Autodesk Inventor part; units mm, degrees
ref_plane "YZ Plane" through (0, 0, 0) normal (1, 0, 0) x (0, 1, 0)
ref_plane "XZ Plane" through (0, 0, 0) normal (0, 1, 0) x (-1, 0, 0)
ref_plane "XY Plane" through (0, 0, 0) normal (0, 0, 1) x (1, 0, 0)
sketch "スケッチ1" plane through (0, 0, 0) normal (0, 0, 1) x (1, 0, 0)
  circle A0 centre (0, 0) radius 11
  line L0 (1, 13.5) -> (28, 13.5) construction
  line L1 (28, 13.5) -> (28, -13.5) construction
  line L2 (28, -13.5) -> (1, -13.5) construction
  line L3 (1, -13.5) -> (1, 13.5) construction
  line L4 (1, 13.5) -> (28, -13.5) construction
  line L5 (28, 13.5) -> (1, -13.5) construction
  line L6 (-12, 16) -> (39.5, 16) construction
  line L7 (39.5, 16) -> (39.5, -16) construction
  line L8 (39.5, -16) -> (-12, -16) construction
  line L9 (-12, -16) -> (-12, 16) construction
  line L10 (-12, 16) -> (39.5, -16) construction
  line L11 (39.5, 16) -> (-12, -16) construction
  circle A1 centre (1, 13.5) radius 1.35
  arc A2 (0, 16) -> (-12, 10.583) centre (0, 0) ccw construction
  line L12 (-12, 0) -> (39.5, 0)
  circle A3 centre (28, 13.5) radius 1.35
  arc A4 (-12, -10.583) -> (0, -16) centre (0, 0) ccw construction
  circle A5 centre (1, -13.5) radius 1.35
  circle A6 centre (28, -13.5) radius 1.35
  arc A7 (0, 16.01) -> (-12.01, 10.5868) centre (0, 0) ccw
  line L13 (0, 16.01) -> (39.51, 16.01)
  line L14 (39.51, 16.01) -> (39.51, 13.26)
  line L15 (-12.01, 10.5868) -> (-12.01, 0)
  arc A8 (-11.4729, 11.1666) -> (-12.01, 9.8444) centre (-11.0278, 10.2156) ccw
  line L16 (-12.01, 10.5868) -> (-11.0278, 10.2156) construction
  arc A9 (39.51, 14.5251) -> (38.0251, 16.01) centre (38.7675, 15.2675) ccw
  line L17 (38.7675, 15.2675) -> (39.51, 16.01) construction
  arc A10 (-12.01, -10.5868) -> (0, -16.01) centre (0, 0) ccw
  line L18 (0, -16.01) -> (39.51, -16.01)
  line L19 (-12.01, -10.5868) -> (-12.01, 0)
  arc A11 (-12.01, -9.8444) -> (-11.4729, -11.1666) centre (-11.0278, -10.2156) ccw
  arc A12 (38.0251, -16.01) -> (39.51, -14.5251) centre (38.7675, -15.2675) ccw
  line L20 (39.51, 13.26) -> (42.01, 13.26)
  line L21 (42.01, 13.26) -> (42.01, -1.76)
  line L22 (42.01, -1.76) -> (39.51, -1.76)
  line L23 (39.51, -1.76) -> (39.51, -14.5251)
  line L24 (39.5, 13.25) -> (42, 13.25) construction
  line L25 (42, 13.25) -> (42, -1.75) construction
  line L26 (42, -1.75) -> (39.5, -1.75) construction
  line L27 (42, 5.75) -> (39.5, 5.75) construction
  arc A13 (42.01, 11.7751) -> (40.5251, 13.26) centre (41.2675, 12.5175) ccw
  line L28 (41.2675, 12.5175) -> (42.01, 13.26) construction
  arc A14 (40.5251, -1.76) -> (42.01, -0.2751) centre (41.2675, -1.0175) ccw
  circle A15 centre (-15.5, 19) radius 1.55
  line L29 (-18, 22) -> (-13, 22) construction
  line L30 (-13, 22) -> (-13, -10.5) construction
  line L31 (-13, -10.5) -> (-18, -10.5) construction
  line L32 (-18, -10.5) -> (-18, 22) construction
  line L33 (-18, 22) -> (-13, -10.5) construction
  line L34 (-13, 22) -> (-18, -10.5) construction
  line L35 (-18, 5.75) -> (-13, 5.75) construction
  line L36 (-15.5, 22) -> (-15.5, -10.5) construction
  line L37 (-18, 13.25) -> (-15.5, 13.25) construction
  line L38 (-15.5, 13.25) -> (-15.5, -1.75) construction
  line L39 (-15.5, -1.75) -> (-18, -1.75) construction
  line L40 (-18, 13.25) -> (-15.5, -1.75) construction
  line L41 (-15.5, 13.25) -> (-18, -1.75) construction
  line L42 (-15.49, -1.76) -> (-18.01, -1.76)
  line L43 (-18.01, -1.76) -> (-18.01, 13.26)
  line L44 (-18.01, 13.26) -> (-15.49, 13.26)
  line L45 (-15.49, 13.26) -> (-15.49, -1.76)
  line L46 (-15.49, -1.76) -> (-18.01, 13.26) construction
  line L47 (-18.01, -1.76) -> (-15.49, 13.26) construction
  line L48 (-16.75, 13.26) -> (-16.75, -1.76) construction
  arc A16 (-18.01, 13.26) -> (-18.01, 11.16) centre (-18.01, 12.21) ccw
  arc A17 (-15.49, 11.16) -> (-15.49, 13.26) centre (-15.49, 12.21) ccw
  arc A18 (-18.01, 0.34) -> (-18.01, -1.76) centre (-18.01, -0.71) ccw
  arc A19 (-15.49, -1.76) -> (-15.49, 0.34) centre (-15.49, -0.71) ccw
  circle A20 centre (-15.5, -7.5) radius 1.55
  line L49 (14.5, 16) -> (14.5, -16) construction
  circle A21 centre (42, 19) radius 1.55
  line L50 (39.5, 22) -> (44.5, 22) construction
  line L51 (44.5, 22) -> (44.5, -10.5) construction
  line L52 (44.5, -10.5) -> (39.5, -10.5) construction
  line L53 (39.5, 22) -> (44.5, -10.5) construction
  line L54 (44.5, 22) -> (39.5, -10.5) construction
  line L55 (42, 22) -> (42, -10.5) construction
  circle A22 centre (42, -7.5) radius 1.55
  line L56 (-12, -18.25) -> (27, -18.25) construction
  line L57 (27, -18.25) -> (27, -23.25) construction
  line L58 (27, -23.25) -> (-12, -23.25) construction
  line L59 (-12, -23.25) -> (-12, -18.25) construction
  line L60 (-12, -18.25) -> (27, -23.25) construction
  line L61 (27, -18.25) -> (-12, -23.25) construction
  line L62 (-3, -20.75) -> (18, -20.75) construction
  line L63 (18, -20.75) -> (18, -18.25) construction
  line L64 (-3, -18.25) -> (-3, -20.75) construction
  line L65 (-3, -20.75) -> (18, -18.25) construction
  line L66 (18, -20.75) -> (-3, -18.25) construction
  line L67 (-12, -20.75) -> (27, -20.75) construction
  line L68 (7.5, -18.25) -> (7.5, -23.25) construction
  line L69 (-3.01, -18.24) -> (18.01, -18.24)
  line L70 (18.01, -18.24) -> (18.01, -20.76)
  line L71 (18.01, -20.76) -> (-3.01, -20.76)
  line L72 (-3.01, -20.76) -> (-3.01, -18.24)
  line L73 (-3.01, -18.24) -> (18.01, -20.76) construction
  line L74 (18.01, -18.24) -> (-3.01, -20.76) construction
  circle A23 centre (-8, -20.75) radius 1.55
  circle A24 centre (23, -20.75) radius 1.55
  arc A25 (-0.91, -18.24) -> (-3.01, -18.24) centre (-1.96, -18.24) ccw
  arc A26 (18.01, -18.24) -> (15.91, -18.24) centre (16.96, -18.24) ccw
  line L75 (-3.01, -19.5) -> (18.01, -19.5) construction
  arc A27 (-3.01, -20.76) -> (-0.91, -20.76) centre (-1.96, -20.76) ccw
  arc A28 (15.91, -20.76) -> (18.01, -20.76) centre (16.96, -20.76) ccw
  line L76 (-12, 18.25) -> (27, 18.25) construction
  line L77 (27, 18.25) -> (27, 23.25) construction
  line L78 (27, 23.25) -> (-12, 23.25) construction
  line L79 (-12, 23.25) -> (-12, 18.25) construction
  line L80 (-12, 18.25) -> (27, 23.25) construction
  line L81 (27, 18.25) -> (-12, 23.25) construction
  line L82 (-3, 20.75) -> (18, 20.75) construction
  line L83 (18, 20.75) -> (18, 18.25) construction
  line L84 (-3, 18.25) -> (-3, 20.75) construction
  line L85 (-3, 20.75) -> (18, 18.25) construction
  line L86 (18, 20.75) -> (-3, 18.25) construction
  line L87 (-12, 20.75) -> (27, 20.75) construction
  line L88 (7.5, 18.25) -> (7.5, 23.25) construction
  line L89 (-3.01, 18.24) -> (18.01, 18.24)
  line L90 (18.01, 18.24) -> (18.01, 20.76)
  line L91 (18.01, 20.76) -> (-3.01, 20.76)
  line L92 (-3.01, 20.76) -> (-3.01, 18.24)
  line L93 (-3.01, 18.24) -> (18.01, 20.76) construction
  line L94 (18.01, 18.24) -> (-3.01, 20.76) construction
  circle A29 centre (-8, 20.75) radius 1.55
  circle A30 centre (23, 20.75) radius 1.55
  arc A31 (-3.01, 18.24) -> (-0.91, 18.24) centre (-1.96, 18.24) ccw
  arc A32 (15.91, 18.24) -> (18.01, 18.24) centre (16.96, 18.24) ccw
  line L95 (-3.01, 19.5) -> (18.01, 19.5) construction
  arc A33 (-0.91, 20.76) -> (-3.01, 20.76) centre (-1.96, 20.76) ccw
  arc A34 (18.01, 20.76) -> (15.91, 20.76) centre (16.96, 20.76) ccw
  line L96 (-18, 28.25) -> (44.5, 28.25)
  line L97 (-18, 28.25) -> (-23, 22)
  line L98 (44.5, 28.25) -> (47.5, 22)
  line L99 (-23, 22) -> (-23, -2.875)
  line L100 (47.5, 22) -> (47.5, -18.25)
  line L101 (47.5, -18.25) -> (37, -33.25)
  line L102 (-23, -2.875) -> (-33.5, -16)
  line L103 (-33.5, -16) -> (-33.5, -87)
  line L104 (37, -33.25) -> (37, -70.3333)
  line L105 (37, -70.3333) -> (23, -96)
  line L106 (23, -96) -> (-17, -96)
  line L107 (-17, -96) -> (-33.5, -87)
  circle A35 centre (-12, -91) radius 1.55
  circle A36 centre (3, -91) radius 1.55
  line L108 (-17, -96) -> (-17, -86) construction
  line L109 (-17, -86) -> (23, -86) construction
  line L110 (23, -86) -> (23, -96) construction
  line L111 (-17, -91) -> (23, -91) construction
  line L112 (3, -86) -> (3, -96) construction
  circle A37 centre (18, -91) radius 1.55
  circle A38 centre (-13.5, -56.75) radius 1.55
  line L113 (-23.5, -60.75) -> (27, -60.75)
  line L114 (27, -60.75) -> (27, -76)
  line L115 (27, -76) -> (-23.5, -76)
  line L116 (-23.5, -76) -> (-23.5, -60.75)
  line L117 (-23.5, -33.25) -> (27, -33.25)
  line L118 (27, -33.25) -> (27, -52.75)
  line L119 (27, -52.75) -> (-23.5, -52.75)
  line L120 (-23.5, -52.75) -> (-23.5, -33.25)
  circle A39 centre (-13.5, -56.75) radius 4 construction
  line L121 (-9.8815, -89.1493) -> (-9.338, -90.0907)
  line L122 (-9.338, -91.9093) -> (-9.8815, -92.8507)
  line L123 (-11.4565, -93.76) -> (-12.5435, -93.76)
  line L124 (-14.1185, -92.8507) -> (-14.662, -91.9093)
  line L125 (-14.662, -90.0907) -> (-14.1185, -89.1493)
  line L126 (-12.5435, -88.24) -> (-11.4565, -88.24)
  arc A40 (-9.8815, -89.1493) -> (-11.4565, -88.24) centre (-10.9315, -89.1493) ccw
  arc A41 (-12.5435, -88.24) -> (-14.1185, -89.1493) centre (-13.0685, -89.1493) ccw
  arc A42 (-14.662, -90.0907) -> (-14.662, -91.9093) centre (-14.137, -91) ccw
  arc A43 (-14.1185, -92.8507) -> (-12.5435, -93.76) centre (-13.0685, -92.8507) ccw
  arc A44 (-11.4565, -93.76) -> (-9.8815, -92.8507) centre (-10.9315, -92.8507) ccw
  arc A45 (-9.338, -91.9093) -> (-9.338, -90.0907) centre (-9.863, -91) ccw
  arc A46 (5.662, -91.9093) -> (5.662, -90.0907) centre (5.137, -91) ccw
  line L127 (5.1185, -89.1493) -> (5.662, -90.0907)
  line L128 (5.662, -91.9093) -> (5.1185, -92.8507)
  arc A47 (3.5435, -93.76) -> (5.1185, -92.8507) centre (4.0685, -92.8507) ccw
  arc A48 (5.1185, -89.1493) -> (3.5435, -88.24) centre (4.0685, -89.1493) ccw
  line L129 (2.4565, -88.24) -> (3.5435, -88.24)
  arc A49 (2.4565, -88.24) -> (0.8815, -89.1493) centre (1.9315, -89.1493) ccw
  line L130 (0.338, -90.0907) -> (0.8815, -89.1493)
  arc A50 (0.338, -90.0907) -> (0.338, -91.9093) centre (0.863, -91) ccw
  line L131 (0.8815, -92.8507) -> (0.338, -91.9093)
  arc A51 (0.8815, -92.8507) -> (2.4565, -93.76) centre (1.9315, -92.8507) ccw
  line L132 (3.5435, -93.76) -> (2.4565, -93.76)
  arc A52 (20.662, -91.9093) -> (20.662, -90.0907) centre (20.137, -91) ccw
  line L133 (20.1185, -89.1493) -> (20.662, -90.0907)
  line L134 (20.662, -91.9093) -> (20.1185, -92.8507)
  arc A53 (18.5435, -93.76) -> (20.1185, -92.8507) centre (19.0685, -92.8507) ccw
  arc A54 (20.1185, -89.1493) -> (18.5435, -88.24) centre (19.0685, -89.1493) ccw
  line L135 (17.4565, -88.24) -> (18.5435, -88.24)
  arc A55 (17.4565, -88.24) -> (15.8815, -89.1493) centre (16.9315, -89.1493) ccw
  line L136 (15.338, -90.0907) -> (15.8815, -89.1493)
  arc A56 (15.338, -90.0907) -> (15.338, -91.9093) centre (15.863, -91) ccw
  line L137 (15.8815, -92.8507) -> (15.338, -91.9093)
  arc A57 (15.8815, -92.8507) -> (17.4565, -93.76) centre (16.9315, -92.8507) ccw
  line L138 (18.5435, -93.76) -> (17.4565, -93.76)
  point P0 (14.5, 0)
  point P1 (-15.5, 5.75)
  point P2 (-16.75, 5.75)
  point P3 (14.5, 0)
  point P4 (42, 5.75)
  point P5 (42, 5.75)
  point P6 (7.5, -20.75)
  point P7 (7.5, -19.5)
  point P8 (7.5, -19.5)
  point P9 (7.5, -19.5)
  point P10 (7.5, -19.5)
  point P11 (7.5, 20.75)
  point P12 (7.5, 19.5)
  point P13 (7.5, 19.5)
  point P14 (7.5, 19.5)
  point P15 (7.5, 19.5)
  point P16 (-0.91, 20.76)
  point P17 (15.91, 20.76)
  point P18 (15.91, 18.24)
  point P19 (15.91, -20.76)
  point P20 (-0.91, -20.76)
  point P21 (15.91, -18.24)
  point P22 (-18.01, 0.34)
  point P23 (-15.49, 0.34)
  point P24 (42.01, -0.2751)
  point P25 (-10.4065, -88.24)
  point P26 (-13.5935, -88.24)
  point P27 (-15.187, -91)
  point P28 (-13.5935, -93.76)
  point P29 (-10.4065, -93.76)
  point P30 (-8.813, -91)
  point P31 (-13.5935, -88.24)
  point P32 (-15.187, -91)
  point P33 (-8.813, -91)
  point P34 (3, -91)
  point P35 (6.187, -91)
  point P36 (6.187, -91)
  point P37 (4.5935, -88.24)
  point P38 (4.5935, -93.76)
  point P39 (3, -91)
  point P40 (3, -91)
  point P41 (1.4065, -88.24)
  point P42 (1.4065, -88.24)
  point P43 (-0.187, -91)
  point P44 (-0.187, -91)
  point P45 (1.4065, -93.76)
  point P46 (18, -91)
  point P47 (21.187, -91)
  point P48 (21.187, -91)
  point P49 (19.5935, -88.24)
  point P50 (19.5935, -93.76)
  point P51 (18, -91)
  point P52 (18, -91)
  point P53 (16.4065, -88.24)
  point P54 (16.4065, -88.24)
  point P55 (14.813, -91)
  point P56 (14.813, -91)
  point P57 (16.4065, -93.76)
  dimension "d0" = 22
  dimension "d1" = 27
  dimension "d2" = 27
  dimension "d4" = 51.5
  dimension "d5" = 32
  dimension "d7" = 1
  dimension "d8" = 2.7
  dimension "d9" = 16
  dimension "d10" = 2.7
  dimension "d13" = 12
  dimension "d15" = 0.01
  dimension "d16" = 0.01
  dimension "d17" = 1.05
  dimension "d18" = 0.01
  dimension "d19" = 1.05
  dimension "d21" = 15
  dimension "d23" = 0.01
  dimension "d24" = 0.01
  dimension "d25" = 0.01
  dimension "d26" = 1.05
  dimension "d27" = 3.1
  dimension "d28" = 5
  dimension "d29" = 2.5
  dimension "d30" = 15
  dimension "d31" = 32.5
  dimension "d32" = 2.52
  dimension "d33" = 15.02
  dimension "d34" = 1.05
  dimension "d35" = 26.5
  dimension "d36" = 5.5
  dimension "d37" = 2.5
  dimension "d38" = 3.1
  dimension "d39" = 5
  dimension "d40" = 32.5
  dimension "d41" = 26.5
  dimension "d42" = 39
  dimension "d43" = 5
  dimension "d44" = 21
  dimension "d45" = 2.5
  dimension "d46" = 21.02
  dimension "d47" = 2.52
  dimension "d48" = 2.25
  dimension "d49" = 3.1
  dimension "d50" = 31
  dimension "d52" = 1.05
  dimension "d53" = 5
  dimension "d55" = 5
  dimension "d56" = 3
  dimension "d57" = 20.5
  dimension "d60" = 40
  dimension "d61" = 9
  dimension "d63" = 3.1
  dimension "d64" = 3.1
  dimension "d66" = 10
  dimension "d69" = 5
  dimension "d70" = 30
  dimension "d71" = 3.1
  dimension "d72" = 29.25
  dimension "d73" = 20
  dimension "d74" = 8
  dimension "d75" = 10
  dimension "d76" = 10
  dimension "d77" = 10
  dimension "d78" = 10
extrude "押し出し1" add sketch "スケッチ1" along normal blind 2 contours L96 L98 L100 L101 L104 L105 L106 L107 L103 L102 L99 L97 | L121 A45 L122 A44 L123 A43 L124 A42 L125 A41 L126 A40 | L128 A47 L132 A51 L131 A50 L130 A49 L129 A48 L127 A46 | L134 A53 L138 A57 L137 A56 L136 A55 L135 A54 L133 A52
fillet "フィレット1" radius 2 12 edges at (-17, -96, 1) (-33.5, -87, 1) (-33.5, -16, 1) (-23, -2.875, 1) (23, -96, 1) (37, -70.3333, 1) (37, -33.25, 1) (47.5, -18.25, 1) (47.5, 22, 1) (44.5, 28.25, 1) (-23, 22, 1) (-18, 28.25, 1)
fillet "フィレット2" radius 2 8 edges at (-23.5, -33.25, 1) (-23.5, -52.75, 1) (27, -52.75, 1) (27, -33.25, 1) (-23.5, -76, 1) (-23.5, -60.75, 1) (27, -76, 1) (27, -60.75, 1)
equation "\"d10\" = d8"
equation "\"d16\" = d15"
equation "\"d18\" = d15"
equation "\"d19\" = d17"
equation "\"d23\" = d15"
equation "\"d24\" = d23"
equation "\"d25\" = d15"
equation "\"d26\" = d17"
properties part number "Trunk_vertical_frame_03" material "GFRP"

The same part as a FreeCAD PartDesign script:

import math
import FreeCAD as App
import Part
import Sketcher

V = App.Vector
Q = App.Units.Quantity


def edges_at(feature, points):
    """Names of the edges that pass closest to the given points."""
    edges = feature.Shape.Edges
    near = lambda p: min(range(len(edges)), key=lambda i: edges[i].distToShape(Part.Vertex(*p))[0])
    return sorted({f"Edge{near(p) + 1}" for p in points})


def add_polygon(sketch, points):
    """Adds a closed chain of lines whose ends are joined by coincident constraints."""
    first, n = sketch.GeometryCount, len(points)
    for a, b in zip(points, points[1:] + points[:1]):
        sketch.addGeometry(Part.LineSegment(App.Vector(*a, 0), App.Vector(*b, 0)), False)
    for i in range(n):
        sketch.addConstraint(Sketcher.Constraint("Coincident", first + i, 2, first + (i + 1) % n, 1))

doc = App.newDocument("Part")
params = doc.addObject("Spreadsheet::Sheet", "Params")
for row, (alias, value) in enumerate([
    ("sketch1_diameter", "3.1 mm"),
    ("sketch1_width", "40 mm"),
    ("sketch1_radius", "1.05 mm"),
    ("sketch1_width2", "2.52 mm"),
    ("sketch1_height", "71 mm"),
    ("pad1_length", "2 mm"),
    ("fillet_radius", "2 mm"),
    ("fillet2_radius", "2 mm"),
], start=1):
    params.set(f"A{row}", alias)
    params.set(f"B{row}", "=" + value)
    params.setAlias(f"B{row}", alias)

body = doc.addObject("PartDesign::Body", "Body")

sketch1 = body.newObject("Sketcher::SketchObject", "Sketch")
sketch1.AttachmentSupport = (doc.getObject("XY_Plane"), [""])
sketch1.MapMode = "FlatFace"
add_polygon(sketch1, [(44.5, 28.2), (-18, 28.2), (-23, 22), (-23, -2.9), (-33.5, -16), (-33.5, -87), (-17, -96), (23, -96), (37, -70.3), (37, -33.2), (47.5, -18.2), (47.5, 22)])
add_polygon(sketch1, [(-23.5, -76), (-23.5, -60.8), (27, -60.8), (27, -76)])
sketch1.addGeometry(Part.Circle(V(-13.5, -56.8, 0), V(0, 0, 1), 1.6), False)
add_polygon(sketch1, [(-23.5, -52.8), (-23.5, -33.2), (27, -33.2), (27, -52.8)])
sketch1.addGeometry(Part.Circle(V(-15.5, -7.5, 0), V(0, 0, 1), 1.6), False)
sketch1.addGeometry(Part.Circle(V(-8, -20.8, 0), V(0, 0, 1), 1.6), False)
sketch1.addGeometry(Part.ArcOfCircle(Part.Circle(V(-15.5, -0.7, 0), V(0, 0, 1), 1.1), math.radians(-90), math.radians(90)), False)
sketch1.addGeometry(Part.LineSegment(V(-15.5, -1.8, 0), V(-18, -1.8, 0)), False)
sketch1.addGeometry(Part.ArcOfCircle(Part.Circle(V(-18, -0.7, 0), V(0, 0, 1), 1.1), math.radians(90), math.radians(270)), False)
sketch1.addGeometry(Part.LineSegment(V(-18, 0.3, 0), V(-18, 11.2, 0)), False)
sketch1.addGeometry(Part.ArcOfCircle(Part.Circle(V(-18, 12.2, 0), V(0, 0, 1), 1), math.radians(90), math.radians(270)), False)
sketch1.addGeometry(Part.LineSegment(V(-18, 13.3, 0), V(-15.5, 13.3, 0)), False)
sketch1.addGeometry(Part.ArcOfCircle(Part.Circle(V(-15.5, 12.2, 0), V(0, 0, 1), 1.1), math.radians(-90), math.radians(90)), False)
sketch1.addGeometry(Part.LineSegment(V(-15.5, 11.2, 0), V(-15.5, 0.3, 0)), False)
sketch1.addGeometry(Part.Circle(V(-15.5, 19, 0), V(0, 0, 1), 1.6), False)
sketch1.addGeometry(Part.Circle(V(-8, 20.8, 0), V(0, 0, 1), 1.6), False)
sketch1.addGeometry(Part.LineSegment(V(-3, -20.8, 0), V(-3, -18.2, 0)), False)
sketch1.addGeometry(Part.ArcOfCircle(Part.Circle(V(-2, -18.2, 0), V(0, 0, 1), 1), math.radians(0), math.radians(180)), False)
sketch1.addGeometry(Part.LineSegment(V(-0.9, -18.2, 0), V(15.9, -18.2, 0)), False)
sketch1.addGeometry(Part.ArcOfCircle(Part.Circle(V(17, -18.2, 0), V(0, 0, 1), 1.1), math.radians(0), math.radians(180)), False)
sketch1.addGeometry(Part.LineSegment(V(18, -18.2, 0), V(18, -20.8, 0)), False)
sketch1.addGeometry(Part.ArcOfCircle(Part.Circle(V(17, -20.8, 0), V(0, 0, 1), 1.1), math.radians(180), math.radians(360)), False)
sketch1.addGeometry(Part.LineSegment(V(15.9, -20.8, 0), V(-0.9, -20.8, 0)), False)
sketch1.addGeometry(Part.ArcOfCircle(Part.Circle(V(-2, -20.8, 0), V(0, 0, 1), 1), math.radians(180), math.radians(360)), False)
sketch1.addGeometry(Part.Circle(V(23, -20.8, 0), V(0, 0, 1), 1.6), False)
sketch1.addGeometry(Part.Circle(V(42, -7.5, 0), V(0, 0, 1), 1.6), False)
sketch1.addGeometry(Part.ArcOfCircle(Part.Circle(V(0, 0, 0), V(0, 0, 1), 16), math.radians(90), math.radians(136)), False)
sketch1.addGeometry(Part.LineSegment(V(0, 16, 0), V(38, 16, 0)), False)
sketch1.addGeometry(Part.ArcOfCircle(Part.Circle(V(38.8, 15.3, 0), V(0, 0, 1), 1), math.radians(-45), math.radians(135)), False)
sketch1.addGeometry(Part.LineSegment(V(39.5, 14.5, 0), V(39.5, 13.3, 0)), False)
sketch1.addGeometry(Part.LineSegment(V(39.5, 13.3, 0), V(40.5, 13.3, 0)), False)
sketch1.addGeometry(Part.ArcOfCircle(Part.Circle(V(41.3, 12.5, 0), V(0, 0, 1), 1), math.radians(-45), math.radians(135)), False)
sketch1.addGeometry(Part.LineSegment(V(42, 11.8, 0), V(42, -0.3, 0)), False)
sketch1.addGeometry(Part.ArcOfCircle(Part.Circle(V(41.3, -1, 0), V(0, 0, 1), 1), math.radians(-135), math.radians(45)), False)
sketch1.addGeometry(Part.LineSegment(V(40.5, -1.8, 0), V(39.5, -1.8, 0)), False)
sketch1.addGeometry(Part.LineSegment(V(39.5, -1.8, 0), V(39.5, -14.5, 0)), False)
sketch1.addGeometry(Part.ArcOfCircle(Part.Circle(V(38.8, -15.3, 0), V(0, 0, 1), 1), math.radians(-135), math.radians(45)), False)
sketch1.addGeometry(Part.LineSegment(V(38, -16, 0), V(0, -16, 0)), False)
sketch1.addGeometry(Part.ArcOfCircle(Part.Circle(V(0, 0, 0), V(0, 0, 1), 16), math.radians(-136), math.radians(-90)), False)
sketch1.addGeometry(Part.ArcOfCircle(Part.Circle(V(-11, -10.2, 0), V(0, 0, 1), 1.1), math.radians(159), math.radians(245)), False)
sketch1.addGeometry(Part.LineSegment(V(-12, -9.8, 0), V(-12, 9.8, 0)), False)
sketch1.addGeometry(Part.ArcOfCircle(Part.Circle(V(-11, 10.2, 0), V(0, 0, 1), 1.1), math.radians(115), math.radians(201)), False)
sketch1.addGeometry(Part.ArcOfCircle(Part.Circle(V(-2, 18.2, 0), V(0, 0, 1), 1), math.radians(180), math.radians(360)), False)
sketch1.addGeometry(Part.LineSegment(V(-3, 18.2, 0), V(-3, 20.8, 0)), False)
sketch1.addGeometry(Part.ArcOfCircle(Part.Circle(V(-2, 20.8, 0), V(0, 0, 1), 1), math.radians(0), math.radians(180)), False)
sketch1.addGeometry(Part.LineSegment(V(-0.9, 20.8, 0), V(15.9, 20.8, 0)), False)
sketch1.addGeometry(Part.ArcOfCircle(Part.Circle(V(17, 20.8, 0), V(0, 0, 1), 1.1), math.radians(0), math.radians(180)), False)
sketch1.addGeometry(Part.LineSegment(V(18, 20.8, 0), V(18, 18.2, 0)), False)
sketch1.addGeometry(Part.ArcOfCircle(Part.Circle(V(17, 18.2, 0), V(0, 0, 1), 1.1), math.radians(180), math.radians(360)), False)
sketch1.addGeometry(Part.LineSegment(V(15.9, 18.2, 0), V(-0.9, 18.2, 0)), False)
sketch1.addGeometry(Part.Circle(V(23, 20.8, 0), V(0, 0, 1), 1.6), False)
sketch1.addGeometry(Part.Circle(V(42, 19, 0), V(0, 0, 1), 1.6), False)
sketch1.addGeometry(Part.Circle(V(-12, -91, 0), V(0, 0, 1), 1.6), False)
sketch1.addGeometry(Part.Circle(V(3, -91, 0), V(0, 0, 1), 1.6), False)
sketch1.addGeometry(Part.Circle(V(18, -91, 0), V(0, 0, 1), 1.6), False)
sketch1.addConstraint(Sketcher.Constraint("Tangent", 23, 1, 24, 1))
sketch1.addConstraint(Sketcher.Constraint("Tangent", 24, 2, 25, 2))
sketch1.addConstraint(Sketcher.Constraint("Coincident", 25, 1, 26, 1))
sketch1.addConstraint(Sketcher.Constraint("Coincident", 26, 2, 27, 2))
sketch1.addConstraint(Sketcher.Constraint("Tangent", 27, 1, 28, 1))
sketch1.addConstraint(Sketcher.Constraint("Tangent", 28, 2, 29, 2))
sketch1.addConstraint(Sketcher.Constraint("Coincident", 29, 1, 30, 1))
sketch1.addConstraint(Sketcher.Constraint("Coincident", 30, 2, 23, 2))
sketch1.addConstraint(Sketcher.Constraint("Tangent", 33, 2, 34, 2))
sketch1.addConstraint(Sketcher.Constraint("Coincident", 34, 1, 35, 1))
sketch1.addConstraint(Sketcher.Constraint("Coincident", 35, 2, 36, 2))
sketch1.addConstraint(Sketcher.Constraint("Tangent", 36, 1, 37, 1))
sketch1.addConstraint(Sketcher.Constraint("Tangent", 37, 2, 38, 2))
sketch1.addConstraint(Sketcher.Constraint("Coincident", 38, 1, 39, 1))
sketch1.addConstraint(Sketcher.Constraint("Coincident", 39, 2, 40, 2))
sketch1.addConstraint(Sketcher.Constraint("Tangent", 40, 1, 33, 1))
sketch1.addConstraint(Sketcher.Constraint("Tangent", 43, 1, 44, 1))
sketch1.addConstraint(Sketcher.Constraint("Coincident", 44, 2, 45, 2))
sketch1.addConstraint(Sketcher.Constraint("Coincident", 45, 1, 46, 1))
sketch1.addConstraint(Sketcher.Constraint("Coincident", 46, 2, 47, 1))
sketch1.addConstraint(Sketcher.Constraint("Coincident", 47, 2, 48, 2))
sketch1.addConstraint(Sketcher.Constraint("Coincident", 48, 1, 49, 1))
sketch1.addConstraint(Sketcher.Constraint("Coincident", 49, 2, 50, 2))
sketch1.addConstraint(Sketcher.Constraint("Coincident", 50, 1, 51, 1))
sketch1.addConstraint(Sketcher.Constraint("Coincident", 51, 2, 52, 1))
sketch1.addConstraint(Sketcher.Constraint("Coincident", 52, 2, 53, 2))
sketch1.addConstraint(Sketcher.Constraint("Coincident", 53, 1, 54, 1))
sketch1.addConstraint(Sketcher.Constraint("Tangent", 54, 2, 55, 2))
sketch1.addConstraint(Sketcher.Constraint("Coincident", 55, 1, 56, 2))
sketch1.addConstraint(Sketcher.Constraint("Coincident", 56, 1, 57, 1))
sketch1.addConstraint(Sketcher.Constraint("Coincident", 57, 2, 58, 2))
sketch1.addConstraint(Sketcher.Constraint("Coincident", 58, 1, 43, 2))
sketch1.addConstraint(Sketcher.Constraint("Tangent", 59, 1, 60, 1))
sketch1.addConstraint(Sketcher.Constraint("Tangent", 60, 2, 61, 2))
sketch1.addConstraint(Sketcher.Constraint("Coincident", 61, 1, 62, 1))
sketch1.addConstraint(Sketcher.Constraint("Coincident", 62, 2, 63, 2))
sketch1.addConstraint(Sketcher.Constraint("Tangent", 63, 1, 64, 1))
sketch1.addConstraint(Sketcher.Constraint("Tangent", 64, 2, 65, 2))
sketch1.addConstraint(Sketcher.Constraint("Coincident", 65, 1, 66, 1))
sketch1.addConstraint(Sketcher.Constraint("Coincident", 66, 2, 59, 2))
sketch1.addConstraint(Sketcher.Constraint("Horizontal", 0))
sketch1.addConstraint(Sketcher.Constraint("Vertical", 2))
sketch1.addConstraint(Sketcher.Constraint("Vertical", 4))
sketch1.addConstraint(Sketcher.Constraint("Horizontal", 6))
sketch1.addConstraint(Sketcher.Constraint("Vertical", 8))
sketch1.addConstraint(Sketcher.Constraint("Vertical", 10))
sketch1.addConstraint(Sketcher.Constraint("Vertical", 12))
sketch1.addConstraint(Sketcher.Constraint("Horizontal", 13))
sketch1.addConstraint(Sketcher.Constraint("Vertical", 14))
sketch1.addConstraint(Sketcher.Constraint("Horizontal", 15))
sketch1.addConstraint(Sketcher.Constraint("Vertical", 17))
sketch1.addConstraint(Sketcher.Constraint("Horizontal", 18))
sketch1.addConstraint(Sketcher.Constraint("Vertical", 19))
sketch1.addConstraint(Sketcher.Constraint("Horizontal", 20))
sketch1.addConstraint(Sketcher.Constraint("Horizontal", 24))
sketch1.addConstraint(Sketcher.Constraint("Vertical", 26))
sketch1.addConstraint(Sketcher.Constraint("Horizontal", 28))
sketch1.addConstraint(Sketcher.Constraint("Vertical", 30))
sketch1.addConstraint(Sketcher.Constraint("Vertical", 33))
sketch1.addConstraint(Sketcher.Constraint("Horizontal", 35))
sketch1.addConstraint(Sketcher.Constraint("Vertical", 37))
sketch1.addConstraint(Sketcher.Constraint("Horizontal", 39))
sketch1.addConstraint(Sketcher.Constraint("Horizontal", 44))
sketch1.addConstraint(Sketcher.Constraint("Vertical", 46))
sketch1.addConstraint(Sketcher.Constraint("Horizontal", 47))
sketch1.addConstraint(Sketcher.Constraint("Vertical", 49))
sketch1.addConstraint(Sketcher.Constraint("Horizontal", 51))
sketch1.addConstraint(Sketcher.Constraint("Vertical", 52))
sketch1.addConstraint(Sketcher.Constraint("Horizontal", 54))
sketch1.addConstraint(Sketcher.Constraint("Vertical", 57))
sketch1.addConstraint(Sketcher.Constraint("Vertical", 60))
sketch1.addConstraint(Sketcher.Constraint("Horizontal", 62))
sketch1.addConstraint(Sketcher.Constraint("Vertical", 64))
sketch1.addConstraint(Sketcher.Constraint("Horizontal", 66))
sketch1.addConstraint(Sketcher.Constraint("Coincident", 43, 3, -1, 1))
sketch1.addConstraint(Sketcher.Constraint("Coincident", 55, 3, -1, 1))
sketch1.addConstraint(Sketcher.Constraint("Equal", 16, 21))
sketch1.addConstraint(Sketcher.Constraint("Equal", 21, 22))
sketch1.addConstraint(Sketcher.Constraint("Equal", 23, 25))
sketch1.addConstraint(Sketcher.Constraint("Equal", 25, 27))
sketch1.addConstraint(Sketcher.Constraint("Equal", 27, 29))
sketch1.addConstraint(Sketcher.Constraint("Equal", 22, 31))
sketch1.addConstraint(Sketcher.Constraint("Equal", 31, 32))
sketch1.addConstraint(Sketcher.Constraint("Equal", 29, 34))
sketch1.addConstraint(Sketcher.Constraint("Equal", 34, 36))
sketch1.addConstraint(Sketcher.Constraint("Equal", 36, 38))
sketch1.addConstraint(Sketcher.Constraint("Equal", 38, 40))
sketch1.addConstraint(Sketcher.Constraint("Equal", 32, 41))
sketch1.addConstraint(Sketcher.Constraint("Equal", 41, 42))
sketch1.addConstraint(Sketcher.Constraint("Equal", 40, 45))
sketch1.addConstraint(Sketcher.Constraint("Equal", 45, 48))
sketch1.addConstraint(Sketcher.Constraint("Equal", 48, 50))
sketch1.addConstraint(Sketcher.Constraint("Equal", 50, 53))
sketch1.addConstraint(Sketcher.Constraint("Equal", 43, 55))
sketch1.addConstraint(Sketcher.Constraint("Equal", 53, 56))
sketch1.addConstraint(Sketcher.Constraint("Equal", 56, 58))
sketch1.addConstraint(Sketcher.Constraint("Equal", 58, 59))
sketch1.addConstraint(Sketcher.Constraint("Equal", 59, 61))
sketch1.addConstraint(Sketcher.Constraint("Equal", 61, 63))
sketch1.addConstraint(Sketcher.Constraint("Equal", 63, 65))
sketch1.addConstraint(Sketcher.Constraint("Equal", 42, 67))
sketch1.addConstraint(Sketcher.Constraint("Equal", 67, 68))
sketch1.addConstraint(Sketcher.Constraint("Equal", 68, 69))
sketch1.addConstraint(Sketcher.Constraint("Equal", 69, 70))
sketch1.addConstraint(Sketcher.Constraint("Equal", 70, 71))
sketch1.addConstraint(Sketcher.Constraint("Symmetric", 22, 3, 32, 3, -1))
sketch1.addConstraint(Sketcher.Constraint("Symmetric", 45, 3, 53, 3, -1))
sketch1.addConstraint(Sketcher.Constraint("Symmetric", 56, 3, 58, 3, -1))
sketch1.addConstraint(Sketcher.Constraint("Symmetric", 34, 3, 59, 3, -1))
sketch1.addConstraint(Sketcher.Constraint("Symmetric", 38, 3, 63, 3, -1))
sketch1.addConstraint(Sketcher.Constraint("Symmetric", 41, 3, 67, 3, -1))
sketch1.addConstraint(Sketcher.Constraint("Parallel", 1, 3))
sketch1.addConstraint(Sketcher.Constraint("Perpendicular", 5, 7))
sketch1.addConstraint(Sketcher.Constraint("Horizontal", 34, 3, 36, 3))
sketch1.addConstraint(Sketcher.Constraint("Horizontal", 38, 3, 40, 3))
sketch1.addConstraint(Sketcher.Constraint("Horizontal", 22, 3, 41, 3))
sketch1.addConstraint(Sketcher.Constraint("Horizontal", 21, 3, 42, 3))
sketch1.addConstraint(Sketcher.Constraint("Horizontal", 61, 3, 63, 3))
sketch1.addConstraint(Sketcher.Constraint("Horizontal", 59, 3, 65, 3))
sketch1.addConstraint(Sketcher.Constraint("Horizontal", 31, 3, 68, 3))
sketch1.addConstraint(Sketcher.Constraint("Horizontal", 69, 3, 70, 3))
sketch1.addConstraint(Sketcher.Constraint("Horizontal", 70, 3, 71, 3))
sketch1.addConstraint(Sketcher.Constraint("Horizontal", 1, 2, 10, 2))
sketch1.addConstraint(Sketcher.Constraint("Horizontal", 8, 2, 17, 2))
sketch1.addConstraint(Sketcher.Constraint("Horizontal", 33, 2, 34, 1))
sketch1.addConstraint(Sketcher.Constraint("Horizontal", 37, 2, 38, 1))
sketch1.addConstraint(Sketcher.Constraint("Horizontal", 28, 2, 46, 2))
sketch1.addConstraint(Sketcher.Constraint("Horizontal", 24, 2, 50, 1))
sketch1.addConstraint(Sketcher.Constraint("Horizontal", 60, 2, 61, 1))
sketch1.addConstraint(Sketcher.Constraint("Horizontal", 64, 2, 65, 1))
sketch1.addConstraint(Sketcher.Constraint("Vertical", 25, 3, 27, 3))
sketch1.addConstraint(Sketcher.Constraint("Vertical", 23, 3, 29, 3))
sketch1.addConstraint(Sketcher.Constraint("Vertical", 21, 3, 31, 3))
sketch1.addConstraint(Sketcher.Constraint("Vertical", 48, 3, 50, 3))
sketch1.addConstraint(Sketcher.Constraint("Vertical", 42, 3, 68, 3))
sketch1.addConstraint(Sketcher.Constraint("Vertical", 67, 3, 6, 2))
sketch1.addConstraint(Sketcher.Constraint("Vertical", 15, 2, 17, 2))
sketch1.addConstraint(Sketcher.Constraint("Vertical", 14, 2, 18, 2))
sketch1.addConstraint(Sketcher.Constraint("Vertical", 24, 2, 25, 1))
sketch1.addConstraint(Sketcher.Constraint("Vertical", 28, 2, 29, 1))
sketch1.addConstraint(Sketcher.Constraint("Vertical", 47, 2, 50, 1))
sketch1.addConstraint(Sketcher.Constraint("Vertical", 46, 2, 51, 2))
sketch1.addConstraint(Sketcher.Constraint("Equal", 28, 33))
sketch1.addConstraint(Sketcher.Constraint("Diameter", 16, 3.1))
sketch1.addConstraint(Sketcher.Constraint("DistanceX", 6, 1, 6, 2, 40.0))
sketch1.addConstraint(Sketcher.Constraint("Radius", 23, 1.05))
sketch1.addConstraint(Sketcher.Constraint("DistanceX", 22, 3, -1, 1, 8.0))
sketch1.addConstraint(Sketcher.Constraint("DistanceX", 69, 3, -1, 1, 12.0))
sketch1.addConstraint(Sketcher.Constraint("DistanceX", -1, 1, 70, 3, 3.0))
sketch1.addConstraint(Sketcher.Constraint("DistanceY", -1, 1, 1, 2, 22.0))
sketch1.addConstraint(Sketcher.Constraint("DistanceY", 3, 2, -1, 1, 16.0))
sketch1.addConstraint(Sketcher.Constraint("DistanceX", -1, 1, 13, 2, 27.0))
sketch1.addConstraint(Sketcher.Constraint("DistanceX", 24, 2, 24, 1, 2.52))
sketch1.addConstraint(Sketcher.Constraint("DistanceY", 4, 2, 4, 1, 71.0))
sketch1.addConstraint(Sketcher.Constraint("Radius", 43, 16.01))
sketch1.addConstraint(Sketcher.Constraint("DistanceX", 0, 2, 0, 1, 62.5))
sketch1.addConstraint(Sketcher.Constraint("DistanceX", 13, 1, 13, 2, 50.5))
sketch1.addConstraint(Sketcher.Constraint("DistanceY", 17, 1, 17, 2, 19.5))
sketch1.addConstraint(Sketcher.Constraint("DistanceY", -1, 1, 31, 3, 19.0))
sketch1.addConstraint(Sketcher.Constraint("DistanceX", -1, 1, 41, 3, 23.0))
sketch1.addConstraint(Sketcher.Constraint("DistanceX", -1, 1, 42, 3, 42.0))
sketch1.addConstraint(Sketcher.Constraint("DistanceY", 69, 3, -1, 1, 91.0))
sketch1.addConstraint(Sketcher.Constraint("DistanceX", -1, 1, 71, 3, 18.0))
sketch1.addConstraint(Sketcher.Constraint("DistanceX", 0, 2, -1, 1, 18.0))
sketch1.addConstraint(Sketcher.Constraint("DistanceX", 1, 2, -1, 1, 23.0))
sketch1.addConstraint(Sketcher.Constraint("DistanceY", 5, 2, -1, 1, 96.0))
sketch1.addConstraint(Sketcher.Constraint("DistanceX", -1, 1, 7, 2, 37.0))
sketch1.addConstraint(Sketcher.Constraint("DistanceY", 14, 2, -1, 1, 76.0))
sketch1.addConstraint(Sketcher.Constraint("DistanceX", 35, 1, 35, 2, 16.82))
sketch1.addConstraint(Sketcher.Constraint("DistanceY", 10, 1, 10, 2, 40.25))
sketch1.addConstraint(Sketcher.Constraint("DistanceY", 12, 1, 12, 2, 15.25))
sketch1.addConstraint(Sketcher.Constraint("DistanceY", 26, 1, 26, 2, 10.82))
sketch1.addConstraint(Sketcher.Constraint("DistanceX", 16, 3, -1, 1, 13.5))
sketch1.addConstraint(Sketcher.Constraint("DistanceX", 21, 3, -1, 1, 15.5))
sketch1.addConstraint(Sketcher.Constraint("DistanceY", 21, 3, -1, 1, 7.5))
sketch1.addConstraint(Sketcher.Constraint("DistanceX", 3, 2, -1, 1, 33.5))
sketch1.addConstraint(Sketcher.Constraint("DistanceX", -1, 1, 9, 2, 47.5))
sketch1.addConstraint(Sketcher.Constraint("Angle", 1, Q("-128.6598 deg")))
sketch1.addConstraint(Sketcher.Constraint("DistanceX", 44, 1, 44, 2, 38.025))
sketch1.addConstraint(Sketcher.Constraint("DistanceX", 47, 1, 47, 2, 1.015))
sketch1.addConstraint(Sketcher.Constraint("DistanceY", 46, 2, 46, 1, 1.265))
sketch1.addConstraint(Sketcher.Constraint("DistanceY", 52, 2, 52, 1, 12.765))
sketch1.addConstraint(Sketcher.Constraint("DistanceY", 16, 3, -1, 1, 56.75))
sketch1.addConstraint(Sketcher.Constraint("DistanceY", 22, 3, -1, 1, 20.75))
sketch1.addConstraint(Sketcher.Constraint("DistanceX", 23, 3, -1, 1, 15.49))
sketch1.addConstraint(Sketcher.Constraint("DistanceX", 34, 3, -1, 1, 1.96))
sketch1.addConstraint(Sketcher.Constraint("DistanceY", 34, 3, -1, 1, 18.24))
sketch1.addConstraint(Sketcher.Constraint("DistanceY", 8, 2, -1, 1, 33.25))
sketch1.addConstraint(Sketcher.Constraint("DistanceX", -1, 1, 48, 1, 42.01))
sketch1.addConstraint(Sketcher.Constraint("DistanceX", 56, 1, -1, 1, 12.01))
sketch1.addConstraint(Sketcher.Constraint("DistanceY", 57, 1, 57, 2, 19.6888))
sketch1.addConstraint(Sketcher.Constraint("DistanceX", 55, 1, -1, 1, 11.473))
sketch1.addConstraint(Sketcher.Constraint("DistanceX", -1, 1, 45, 3, 38.7675))
sketch1.addConstraint(Sketcher.Constraint("DistanceX", -1, 1, 48, 3, 41.2675))
sketch1.setExpression("Constraints[163]", "Params.sketch1_diameter")
sketch1.setExpression("Constraints[164]", "Params.sketch1_width")
sketch1.setExpression("Constraints[165]", "Params.sketch1_radius")
sketch1.setExpression("Constraints[172]", "Params.sketch1_width2")
sketch1.setExpression("Constraints[173]", "Params.sketch1_height")
pad1 = body.newObject("PartDesign::Pad", "Pad")
pad1.Profile = sketch1
pad1.setExpression("Length", "Params.pad1_length")
doc.recompute()

fillet = body.newObject("PartDesign::Fillet", "Fillet")
fillet.Base = (pad1, edges_at(pad1, [
    (-17, -96, 1),
    (-33.5, -87, 1),
    (-33.5, -16, 1),
    (-23, -2.875, 1),
    (23, -96, 1),
    (37, -70.333, 1),
    (37, -33.25, 1),
    (47.5, -18.25, 1),
    (47.5, 22, 1),
    (44.5, 28.25, 1),
    (-23, 22, 1),
    (-18, 28.25, 1),
]))
fillet.setExpression("Radius", "Params.fillet_radius")
doc.recompute()

fillet2 = body.newObject("PartDesign::Fillet", "Fillet001")
fillet2.Base = (fillet, edges_at(fillet, [
    (-23.5, -33.25, 1),
    (-23.5, -52.75, 1),
    (27, -52.75, 1),
    (27, -33.25, 1),
    (-23.5, -76, 1),
    (-23.5, -60.75, 1),
    (27, -76, 1),
    (27, -60.75, 1),
]))
fillet2.setExpression("Radius", "Params.fillet2_radius")

doc.recompute()
